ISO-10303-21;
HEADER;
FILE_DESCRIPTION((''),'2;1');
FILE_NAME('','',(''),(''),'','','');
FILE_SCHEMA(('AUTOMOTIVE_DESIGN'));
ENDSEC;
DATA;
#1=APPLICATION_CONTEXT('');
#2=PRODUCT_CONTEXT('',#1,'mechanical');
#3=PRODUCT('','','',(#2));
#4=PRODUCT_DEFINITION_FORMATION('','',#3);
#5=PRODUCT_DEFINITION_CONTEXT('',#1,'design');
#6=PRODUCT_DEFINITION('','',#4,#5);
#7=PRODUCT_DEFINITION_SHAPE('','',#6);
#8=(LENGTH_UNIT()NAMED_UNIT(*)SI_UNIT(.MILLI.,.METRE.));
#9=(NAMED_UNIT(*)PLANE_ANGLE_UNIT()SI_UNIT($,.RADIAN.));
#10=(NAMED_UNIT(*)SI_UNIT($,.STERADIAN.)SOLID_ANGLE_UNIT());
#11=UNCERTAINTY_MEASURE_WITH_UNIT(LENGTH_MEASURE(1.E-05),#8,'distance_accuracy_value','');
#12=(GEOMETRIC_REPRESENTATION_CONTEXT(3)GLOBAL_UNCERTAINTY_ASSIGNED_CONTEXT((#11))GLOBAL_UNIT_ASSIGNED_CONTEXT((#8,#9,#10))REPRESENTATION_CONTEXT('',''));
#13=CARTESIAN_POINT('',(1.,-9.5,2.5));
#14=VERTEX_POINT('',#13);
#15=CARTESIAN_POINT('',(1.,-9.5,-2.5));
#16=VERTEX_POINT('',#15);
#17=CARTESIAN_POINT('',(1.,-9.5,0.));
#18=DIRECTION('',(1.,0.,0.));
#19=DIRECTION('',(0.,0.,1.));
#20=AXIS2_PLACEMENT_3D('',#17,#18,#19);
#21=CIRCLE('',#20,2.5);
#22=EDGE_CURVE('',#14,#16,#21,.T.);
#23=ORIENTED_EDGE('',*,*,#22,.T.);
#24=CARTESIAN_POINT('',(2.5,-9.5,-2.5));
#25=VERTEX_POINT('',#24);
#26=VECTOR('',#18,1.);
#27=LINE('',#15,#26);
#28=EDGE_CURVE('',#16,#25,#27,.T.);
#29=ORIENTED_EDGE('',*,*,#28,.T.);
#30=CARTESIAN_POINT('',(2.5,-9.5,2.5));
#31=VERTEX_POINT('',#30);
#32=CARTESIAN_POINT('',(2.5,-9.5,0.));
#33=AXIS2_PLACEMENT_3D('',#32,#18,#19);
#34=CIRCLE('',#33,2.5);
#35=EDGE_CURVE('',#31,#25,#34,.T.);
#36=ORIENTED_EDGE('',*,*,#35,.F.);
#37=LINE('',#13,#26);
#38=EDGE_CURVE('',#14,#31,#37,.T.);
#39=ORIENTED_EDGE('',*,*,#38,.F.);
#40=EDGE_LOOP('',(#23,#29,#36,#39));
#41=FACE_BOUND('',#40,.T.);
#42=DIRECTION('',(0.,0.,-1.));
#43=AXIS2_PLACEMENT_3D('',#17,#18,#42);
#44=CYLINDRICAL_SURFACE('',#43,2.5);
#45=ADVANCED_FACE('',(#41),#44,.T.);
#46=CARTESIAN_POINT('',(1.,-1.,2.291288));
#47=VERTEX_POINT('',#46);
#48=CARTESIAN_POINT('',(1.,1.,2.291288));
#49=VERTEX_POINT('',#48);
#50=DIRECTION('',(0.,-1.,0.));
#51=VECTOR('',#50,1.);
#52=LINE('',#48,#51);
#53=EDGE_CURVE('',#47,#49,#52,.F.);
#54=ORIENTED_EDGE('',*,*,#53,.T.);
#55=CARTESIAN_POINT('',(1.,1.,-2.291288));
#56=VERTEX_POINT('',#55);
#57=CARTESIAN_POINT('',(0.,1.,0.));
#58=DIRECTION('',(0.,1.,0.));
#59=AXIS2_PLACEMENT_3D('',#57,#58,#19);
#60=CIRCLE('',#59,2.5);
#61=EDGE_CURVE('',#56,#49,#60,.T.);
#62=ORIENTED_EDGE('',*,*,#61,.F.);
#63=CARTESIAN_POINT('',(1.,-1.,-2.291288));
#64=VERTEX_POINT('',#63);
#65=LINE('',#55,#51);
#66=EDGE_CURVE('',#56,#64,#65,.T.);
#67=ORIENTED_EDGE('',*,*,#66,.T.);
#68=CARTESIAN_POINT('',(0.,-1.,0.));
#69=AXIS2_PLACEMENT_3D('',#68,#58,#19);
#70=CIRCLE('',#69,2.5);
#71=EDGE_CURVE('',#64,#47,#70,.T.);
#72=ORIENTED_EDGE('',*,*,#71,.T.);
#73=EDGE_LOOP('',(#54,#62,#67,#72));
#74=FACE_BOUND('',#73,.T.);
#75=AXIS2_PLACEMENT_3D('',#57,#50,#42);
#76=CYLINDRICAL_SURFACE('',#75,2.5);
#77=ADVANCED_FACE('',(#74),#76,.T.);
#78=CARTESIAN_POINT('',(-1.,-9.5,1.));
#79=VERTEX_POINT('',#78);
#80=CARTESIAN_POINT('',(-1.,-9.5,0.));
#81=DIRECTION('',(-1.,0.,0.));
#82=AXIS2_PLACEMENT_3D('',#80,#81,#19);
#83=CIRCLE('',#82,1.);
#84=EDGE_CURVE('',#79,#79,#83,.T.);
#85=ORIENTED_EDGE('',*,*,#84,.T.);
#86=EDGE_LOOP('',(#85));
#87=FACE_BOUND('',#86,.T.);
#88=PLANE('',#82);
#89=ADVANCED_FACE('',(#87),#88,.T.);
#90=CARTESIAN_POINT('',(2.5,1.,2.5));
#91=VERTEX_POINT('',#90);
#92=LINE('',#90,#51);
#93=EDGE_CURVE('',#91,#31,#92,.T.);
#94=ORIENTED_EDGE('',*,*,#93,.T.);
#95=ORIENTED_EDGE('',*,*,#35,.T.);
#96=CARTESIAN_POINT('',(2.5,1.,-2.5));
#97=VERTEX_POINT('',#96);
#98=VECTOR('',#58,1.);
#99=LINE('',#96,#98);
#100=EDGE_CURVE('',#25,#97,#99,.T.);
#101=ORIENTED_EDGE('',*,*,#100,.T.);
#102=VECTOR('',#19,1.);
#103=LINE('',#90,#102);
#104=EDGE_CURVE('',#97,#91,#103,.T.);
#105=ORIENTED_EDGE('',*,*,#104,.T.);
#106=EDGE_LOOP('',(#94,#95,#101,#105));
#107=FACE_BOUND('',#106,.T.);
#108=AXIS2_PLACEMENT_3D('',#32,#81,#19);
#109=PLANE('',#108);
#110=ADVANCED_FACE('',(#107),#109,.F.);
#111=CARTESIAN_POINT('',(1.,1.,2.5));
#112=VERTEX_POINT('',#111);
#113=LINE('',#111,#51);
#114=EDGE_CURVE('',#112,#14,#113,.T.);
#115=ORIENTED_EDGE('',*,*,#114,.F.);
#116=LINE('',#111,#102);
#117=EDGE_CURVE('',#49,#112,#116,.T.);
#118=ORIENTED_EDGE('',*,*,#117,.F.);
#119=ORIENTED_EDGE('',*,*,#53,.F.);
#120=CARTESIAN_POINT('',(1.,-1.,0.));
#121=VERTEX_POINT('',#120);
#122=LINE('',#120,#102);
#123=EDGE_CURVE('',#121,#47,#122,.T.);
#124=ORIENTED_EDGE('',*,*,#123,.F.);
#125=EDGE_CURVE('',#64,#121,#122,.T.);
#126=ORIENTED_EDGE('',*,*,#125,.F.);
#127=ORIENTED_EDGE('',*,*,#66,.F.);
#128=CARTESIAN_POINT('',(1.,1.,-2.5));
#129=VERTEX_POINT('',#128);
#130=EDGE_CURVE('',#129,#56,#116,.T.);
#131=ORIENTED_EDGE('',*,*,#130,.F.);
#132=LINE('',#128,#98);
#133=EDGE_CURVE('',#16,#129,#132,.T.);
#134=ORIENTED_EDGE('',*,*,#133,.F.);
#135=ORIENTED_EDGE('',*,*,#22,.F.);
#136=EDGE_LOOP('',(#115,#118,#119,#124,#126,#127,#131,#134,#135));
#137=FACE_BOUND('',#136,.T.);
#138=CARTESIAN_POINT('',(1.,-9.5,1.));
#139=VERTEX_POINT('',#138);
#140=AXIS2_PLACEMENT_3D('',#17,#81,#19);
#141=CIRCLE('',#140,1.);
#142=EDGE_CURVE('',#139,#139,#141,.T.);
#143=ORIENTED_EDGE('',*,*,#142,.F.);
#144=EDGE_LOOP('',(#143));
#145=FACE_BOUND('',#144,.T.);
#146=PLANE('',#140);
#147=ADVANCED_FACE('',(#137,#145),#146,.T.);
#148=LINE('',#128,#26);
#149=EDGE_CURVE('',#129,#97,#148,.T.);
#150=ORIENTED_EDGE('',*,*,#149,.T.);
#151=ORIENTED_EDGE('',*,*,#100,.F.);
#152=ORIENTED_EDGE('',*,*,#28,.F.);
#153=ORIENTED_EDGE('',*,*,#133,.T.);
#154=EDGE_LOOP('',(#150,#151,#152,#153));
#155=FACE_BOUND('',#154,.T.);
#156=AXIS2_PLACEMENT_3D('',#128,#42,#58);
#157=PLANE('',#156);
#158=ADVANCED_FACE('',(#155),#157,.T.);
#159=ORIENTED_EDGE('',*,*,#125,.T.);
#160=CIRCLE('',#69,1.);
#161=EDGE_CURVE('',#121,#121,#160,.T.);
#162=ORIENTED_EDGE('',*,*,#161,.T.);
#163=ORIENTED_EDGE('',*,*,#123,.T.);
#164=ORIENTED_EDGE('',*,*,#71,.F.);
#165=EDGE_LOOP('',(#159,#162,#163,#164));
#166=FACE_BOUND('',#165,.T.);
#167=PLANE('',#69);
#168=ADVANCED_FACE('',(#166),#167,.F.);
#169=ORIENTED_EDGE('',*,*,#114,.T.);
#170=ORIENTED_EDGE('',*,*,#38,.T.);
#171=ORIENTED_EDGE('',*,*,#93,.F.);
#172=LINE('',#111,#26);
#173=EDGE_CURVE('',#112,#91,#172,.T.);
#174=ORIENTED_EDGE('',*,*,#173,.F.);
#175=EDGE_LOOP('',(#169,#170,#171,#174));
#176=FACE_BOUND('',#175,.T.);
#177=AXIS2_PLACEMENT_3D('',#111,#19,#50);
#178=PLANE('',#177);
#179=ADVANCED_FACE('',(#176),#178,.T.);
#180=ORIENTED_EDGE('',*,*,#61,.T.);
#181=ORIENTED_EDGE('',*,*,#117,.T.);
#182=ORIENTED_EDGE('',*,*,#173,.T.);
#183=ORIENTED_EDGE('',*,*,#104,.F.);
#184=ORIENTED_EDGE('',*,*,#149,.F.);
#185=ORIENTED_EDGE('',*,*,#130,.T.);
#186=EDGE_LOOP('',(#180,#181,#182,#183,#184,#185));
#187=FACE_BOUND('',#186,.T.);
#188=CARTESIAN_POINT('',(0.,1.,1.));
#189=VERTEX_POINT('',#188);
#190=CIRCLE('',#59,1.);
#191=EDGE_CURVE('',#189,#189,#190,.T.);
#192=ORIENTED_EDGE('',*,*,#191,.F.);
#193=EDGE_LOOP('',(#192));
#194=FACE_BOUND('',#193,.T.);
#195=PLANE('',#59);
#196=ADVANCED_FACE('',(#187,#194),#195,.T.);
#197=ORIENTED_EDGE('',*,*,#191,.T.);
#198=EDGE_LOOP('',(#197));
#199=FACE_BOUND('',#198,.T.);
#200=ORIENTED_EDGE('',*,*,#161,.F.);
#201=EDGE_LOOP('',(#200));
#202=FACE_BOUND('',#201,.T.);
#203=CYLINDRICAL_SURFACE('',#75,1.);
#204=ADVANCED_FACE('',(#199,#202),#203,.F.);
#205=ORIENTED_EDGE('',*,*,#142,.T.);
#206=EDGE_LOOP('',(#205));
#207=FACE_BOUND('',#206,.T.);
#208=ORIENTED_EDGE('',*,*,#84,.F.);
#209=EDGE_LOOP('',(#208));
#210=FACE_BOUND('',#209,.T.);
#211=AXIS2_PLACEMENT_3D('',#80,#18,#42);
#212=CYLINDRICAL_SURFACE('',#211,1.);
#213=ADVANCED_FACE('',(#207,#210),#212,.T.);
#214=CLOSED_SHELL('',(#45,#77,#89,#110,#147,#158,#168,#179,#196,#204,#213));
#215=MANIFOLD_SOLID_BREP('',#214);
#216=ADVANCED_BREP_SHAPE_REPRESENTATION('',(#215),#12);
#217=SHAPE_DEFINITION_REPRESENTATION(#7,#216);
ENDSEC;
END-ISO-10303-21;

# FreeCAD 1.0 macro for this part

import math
import FreeCAD as App
import Part
import Sketcher
from FreeCAD import Vector

doc = App.newDocument("Part")
body = doc.addObject("PartDesign::Body", "Body")

# Sketch on XZ plane
sketch1 = body.newObject("Sketcher::SketchObject", "Sketch")
sketch1.AttachmentSupport = (doc.getObject("XZ_Plane"), [""])
sketch1.MapMode = "FlatFace"
sketch1.addGeometry(Part.Circle(Vector(0, 0, 0), Vector(0, 0, 1), 2.5), False)
sketch1.addGeometry(Part.Circle(Vector(0, 0, 0), Vector(0, 0, 1), 1), False)
sketch1.addConstraint(Sketcher.Constraint("Coincident", 0, 3, -1, 1))
sketch1.addConstraint(Sketcher.Constraint("Coincident", 1, 3, -1, 1))
sketch1.addConstraint(Sketcher.Constraint("Diameter", 0, 5.0))
sketch1.addConstraint(Sketcher.Constraint("Diameter", 1, 2.0))
pad1 = body.newObject("PartDesign::Pad", "Pad")
pad1.Profile = sketch1
pad1.Length = 2
pad1.Midplane = True

# Sketch on YZ plane
sketch2 = body.newObject("Sketcher::SketchObject", "Sketch001")
sketch2.AttachmentSupport = (doc.getObject("YZ_Plane"), [""])
sketch2.MapMode = "FlatFace"
sketch2.AttachmentOffset = App.Placement(Vector(0, 0, 2.5), App.Rotation())
sketch2.addGeometry(Part.LineSegment(Vector(1, -2.5, 0), Vector(1, 2.5, 0)), False)
sketch2.addGeometry(Part.LineSegment(Vector(1, 2.5, 0), Vector(-9.5, 2.5, 0)), False)
sketch2.addGeometry(Part.ArcOfCircle(Part.Circle(Vector(-9.5, 0, 0), Vector(0, 0, 1), 2.5), math.radians(90), math.radians(270)), False)
sketch2.addGeometry(Part.LineSegment(Vector(-9.5, -2.5, 0), Vector(1, -2.5, 0)), False)
sketch2.addConstraint(Sketcher.Constraint("Coincident", 0, 2, 1, 1))
sketch2.addConstraint(Sketcher.Constraint("Tangent", 1, 2, 2, 1))
sketch2.addConstraint(Sketcher.Constraint("Tangent", 2, 2, 3, 1))
sketch2.addConstraint(Sketcher.Constraint("Coincident", 3, 2, 0, 1))
sketch2.addConstraint(Sketcher.Constraint("Vertical", 0))
sketch2.addConstraint(Sketcher.Constraint("Horizontal", 1))
sketch2.addConstraint(Sketcher.Constraint("Horizontal", 3))
sketch2.addConstraint(Sketcher.Constraint("PointOnObject", 2, 3, -1))
sketch2.addConstraint(Sketcher.Constraint("Radius", 2, 2.5))
sketch2.addConstraint(Sketcher.Constraint("DistanceX", 1, 2, 1, 1, 10.5))
sketch2.addConstraint(Sketcher.Constraint("DistanceX", -1, 1, 0, 2, 1.0))
pad2 = body.newObject("PartDesign::Pad", "Pad001")
pad2.Profile = sketch2
pad2.Length = 1.5
pad2.Reversed = True

# Sketch on YZ plane
sketch3 = body.newObject("Sketcher::SketchObject", "Sketch002")
sketch3.AttachmentSupport = (doc.getObject("YZ_Plane"), [""])
sketch3.MapMode = "FlatFace"
sketch3.AttachmentOffset = App.Placement(Vector(0, 0, 1), App.Rotation())
sketch3.addGeometry(Part.Circle(Vector(-9.5, 0, 0), Vector(0, 0, 1), 1), False)
sketch3.addConstraint(Sketcher.Constraint("PointOnObject", 0, 3, -1))
sketch3.addConstraint(Sketcher.Constraint("Diameter", 0, 2.0))
sketch3.addConstraint(Sketcher.Constraint("DistanceX", 0, 3, -1, 1, 9.5))
pad3 = body.newObject("PartDesign::Pad", "Pad002")
pad3.Profile = sketch3
pad3.Length = 2
pad3.Reversed = True

doc.recompute()
